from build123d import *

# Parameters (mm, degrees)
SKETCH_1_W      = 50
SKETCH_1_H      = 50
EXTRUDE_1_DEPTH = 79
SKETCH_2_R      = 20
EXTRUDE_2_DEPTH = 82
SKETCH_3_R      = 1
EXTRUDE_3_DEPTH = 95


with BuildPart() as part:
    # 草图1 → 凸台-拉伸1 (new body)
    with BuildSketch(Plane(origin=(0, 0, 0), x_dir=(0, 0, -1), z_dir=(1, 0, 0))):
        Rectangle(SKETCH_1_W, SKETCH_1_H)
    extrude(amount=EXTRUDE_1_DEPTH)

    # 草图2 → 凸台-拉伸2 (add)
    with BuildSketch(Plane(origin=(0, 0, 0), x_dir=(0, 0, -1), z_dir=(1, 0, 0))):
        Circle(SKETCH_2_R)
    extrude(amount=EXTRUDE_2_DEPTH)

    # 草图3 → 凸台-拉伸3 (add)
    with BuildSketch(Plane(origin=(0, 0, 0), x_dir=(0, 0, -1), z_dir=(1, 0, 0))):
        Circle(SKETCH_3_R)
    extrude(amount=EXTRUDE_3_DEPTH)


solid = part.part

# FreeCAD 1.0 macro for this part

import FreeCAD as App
import Part
import Sketcher

V = App.Vector


def add_polygon(sketch, points):
    """Adds a closed chain of lines whose ends are joined by coincident constraints."""
    first, n = sketch.GeometryCount, len(points)
    for a, b in zip(points, points[1:] + points[:1]):
        sketch.addGeometry(Part.LineSegment(App.Vector(*a, 0), App.Vector(*b, 0)), False)
    for i in range(n):
        sketch.addConstraint(Sketcher.Constraint("Coincident", first + i, 2, first + (i + 1) % n, 1))

doc = App.newDocument("Part")
body = doc.addObject("PartDesign::Body", "Body")

# Sketch on YZ plane
sketch1 = body.newObject("Sketcher::SketchObject", "Sketch")
sketch1.AttachmentSupport = (doc.getObject("YZ_Plane"), [""])
sketch1.MapMode = "FlatFace"
add_polygon(sketch1, [(25, 25), (-25, 25), (-25, -25), (25, -25)])  # lines 0-3
sketch1.addConstraint([
    Sketcher.Constraint("Horizontal", 0),
    Sketcher.Constraint("Vertical", 1),
    Sketcher.Constraint("Horizontal", 2),
    Sketcher.Constraint("Vertical", 3),
    Sketcher.Constraint("Symmetric", 0, 2, 2, 2, -1, 1),
    Sketcher.Constraint("Equal", 2, 1),
    Sketcher.Constraint("DistanceX", 0, 2, 0, 1, 50.0),
])
pad1 = body.newObject("PartDesign::Pad", "Pad")
pad1.Profile = sketch1
pad1.Length = 79

# Sketch on YZ plane
sketch2 = body.newObject("Sketcher::SketchObject", "Sketch001")
sketch2.AttachmentSupport = (doc.getObject("YZ_Plane"), [""])
sketch2.MapMode = "FlatFace"
sketch2.addGeometry(Part.Circle(V(0, 0, 0), V(0, 0, 1), 20), False)
sketch2.addConstraint([
    Sketcher.Constraint("Coincident", 0, 3, -1, 1),
    Sketcher.Constraint("Diameter", 0, 40.0),
])
pad2 = body.newObject("PartDesign::Pad", "Pad001")
pad2.Profile = sketch2
pad2.Length = 82

# Sketch on YZ plane
sketch3 = body.newObject("Sketcher::SketchObject", "Sketch002")
sketch3.AttachmentSupport = (doc.getObject("YZ_Plane"), [""])
sketch3.MapMode = "FlatFace"
sketch3.addGeometry(Part.Circle(V(0, 0, 0), V(0, 0, 1), 1), False)
sketch3.addConstraint([
    Sketcher.Constraint("Coincident", 0, 3, -1, 1),
    Sketcher.Constraint("Diameter", 0, 2.0),
])
pad3 = body.newObject("PartDesign::Pad", "Pad002")
pad3.Profile = sketch3
pad3.Length = 95

doc.recompute()
